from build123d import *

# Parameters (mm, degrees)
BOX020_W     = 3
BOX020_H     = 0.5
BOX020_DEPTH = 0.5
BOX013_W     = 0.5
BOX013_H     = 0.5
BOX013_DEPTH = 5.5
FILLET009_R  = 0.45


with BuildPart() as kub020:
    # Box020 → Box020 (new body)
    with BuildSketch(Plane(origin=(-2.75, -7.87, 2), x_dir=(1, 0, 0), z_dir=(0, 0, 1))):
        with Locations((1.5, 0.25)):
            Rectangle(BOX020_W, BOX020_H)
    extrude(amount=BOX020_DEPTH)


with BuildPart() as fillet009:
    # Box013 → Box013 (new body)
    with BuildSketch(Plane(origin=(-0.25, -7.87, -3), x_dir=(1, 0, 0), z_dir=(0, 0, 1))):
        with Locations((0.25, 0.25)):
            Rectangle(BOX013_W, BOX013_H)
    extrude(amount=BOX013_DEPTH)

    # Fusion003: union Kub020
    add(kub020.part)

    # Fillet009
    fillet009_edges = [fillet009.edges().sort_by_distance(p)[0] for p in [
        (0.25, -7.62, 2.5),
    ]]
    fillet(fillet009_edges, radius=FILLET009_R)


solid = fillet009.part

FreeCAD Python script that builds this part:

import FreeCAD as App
import Part
import Sketcher
from FreeCAD import Vector
Q = App.Units.Quantity


def edges_at(feature, points):
    """Names of the edges that pass closest to the given points."""
    edges = feature.Shape.Edges
    near = lambda p: min(range(len(edges)), key=lambda i: edges[i].distToShape(Part.Vertex(*p))[0])
    return sorted({f"Edge{near(p) + 1}" for p in points})

doc = App.newDocument("Part")
body = doc.addObject("PartDesign::Body", "Body")

# Sketch on XY plane
sketch1 = body.newObject("Sketcher::SketchObject", "Sketch")
sketch1.AttachmentSupport = (doc.getObject("XY_Plane"), [""])
sketch1.MapMode = "FlatFace"
sketch1.AttachmentOffset = App.Placement(Vector(0, 0, 2), App.Rotation())
sketch1.addGeometry(Part.LineSegment(Vector(-2.8, -7.4, 0), Vector(-2.8, -7.9, 0)), False)
sketch1.addGeometry(Part.LineSegment(Vector(-2.8, -7.9, 0), Vector(0.2, -7.9, 0)), False)
sketch1.addGeometry(Part.LineSegment(Vector(0.2, -7.9, 0), Vector(0.2, -7.4, 0)), False)
sketch1.addGeometry(Part.LineSegment(Vector(0.2, -7.4, 0), Vector(-2.8, -7.4, 0)), False)
sketch1.addConstraint(Sketcher.Constraint("Coincident", 0, 2, 1, 1))
sketch1.addConstraint(Sketcher.Constraint("Coincident", 1, 2, 2, 1))
sketch1.addConstraint(Sketcher.Constraint("Coincident", 2, 2, 3, 1))
sketch1.addConstraint(Sketcher.Constraint("Coincident", 3, 2, 0, 1))
sketch1.addConstraint(Sketcher.Constraint("Vertical", 0))
sketch1.addConstraint(Sketcher.Constraint("Horizontal", 1))
sketch1.addConstraint(Sketcher.Constraint("Vertical", 2))
sketch1.addConstraint(Sketcher.Constraint("Horizontal", 3))
sketch1.addConstraint(Sketcher.Constraint("DistanceX", 1, 1, 1, 2, Q("3 mm")))
sketch1.addConstraint(Sketcher.Constraint("DistanceY", 0, 2, 0, 1, Q("0.5 mm")))
sketch1.addConstraint(Sketcher.Constraint("DistanceX", 0, 2, -1, 1, Q("2.75 mm")))
sketch1.addConstraint(Sketcher.Constraint("DistanceY", 0, 2, -1, 1, Q("7.87 mm")))
pad1 = body.newObject("PartDesign::Pad", "Pad")
pad1.Profile = sketch1
pad1.Length = 0.5
body2 = doc.addObject("PartDesign::Body", "Body001")

# Sketch on XY plane
sketch2 = body2.newObject("Sketcher::SketchObject", "Sketch001")
sketch2.AttachmentSupport = (doc.getObject("XY_Plane001"), [""])
sketch2.MapMode = "FlatFace"
sketch2.AttachmentOffset = App.Placement(Vector(0, 0, -3), App.Rotation())
sketch2.addGeometry(Part.LineSegment(Vector(-0.2, -7.4, 0), Vector(-0.2, -7.9, 0)), False)
sketch2.addGeometry(Part.LineSegment(Vector(-0.2, -7.9, 0), Vector(0.2, -7.9, 0)), False)
sketch2.addGeometry(Part.LineSegment(Vector(0.2, -7.9, 0), Vector(0.2, -7.4, 0)), False)
sketch2.addGeometry(Part.LineSegment(Vector(0.2, -7.4, 0), Vector(-0.2, -7.4, 0)), False)
sketch2.addConstraint(Sketcher.Constraint("Coincident", 0, 2, 1, 1))
sketch2.addConstraint(Sketcher.Constraint("Coincident", 1, 2, 2, 1))
sketch2.addConstraint(Sketcher.Constraint("Coincident", 2, 2, 3, 1))
sketch2.addConstraint(Sketcher.Constraint("Coincident", 3, 2, 0, 1))
sketch2.addConstraint(Sketcher.Constraint("Vertical", 0))
sketch2.addConstraint(Sketcher.Constraint("Horizontal", 1))
sketch2.addConstraint(Sketcher.Constraint("Vertical", 2))
sketch2.addConstraint(Sketcher.Constraint("Horizontal", 3))
sketch2.addConstraint(Sketcher.Constraint("Equal", 3, 0))
sketch2.addConstraint(Sketcher.Constraint("DistanceX", 1, 1, 1, 2, Q("0.5 mm")))
sketch2.addConstraint(Sketcher.Constraint("DistanceX", 0, 2, -1, 1, Q("0.25 mm")))
sketch2.addConstraint(Sketcher.Constraint("DistanceY", 0, 2, -1, 1, Q("7.87 mm")))
pad2 = body2.newObject("PartDesign::Pad", "Pad001")
pad2.Profile = sketch2
pad2.Length = 5.5
doc.recompute()

boolean = body2.newObject("PartDesign::Boolean", "Boolean")
boolean.Type = "Fuse"
boolean.addObjects([body])
doc.recompute()

fillet = body2.newObject("PartDesign::Fillet", "Fillet")
fillet.Base = (boolean, edges_at(boolean, [(0.25, -7.62, 2.5)]))
fillet.Radius = 0.45

doc.recompute()
